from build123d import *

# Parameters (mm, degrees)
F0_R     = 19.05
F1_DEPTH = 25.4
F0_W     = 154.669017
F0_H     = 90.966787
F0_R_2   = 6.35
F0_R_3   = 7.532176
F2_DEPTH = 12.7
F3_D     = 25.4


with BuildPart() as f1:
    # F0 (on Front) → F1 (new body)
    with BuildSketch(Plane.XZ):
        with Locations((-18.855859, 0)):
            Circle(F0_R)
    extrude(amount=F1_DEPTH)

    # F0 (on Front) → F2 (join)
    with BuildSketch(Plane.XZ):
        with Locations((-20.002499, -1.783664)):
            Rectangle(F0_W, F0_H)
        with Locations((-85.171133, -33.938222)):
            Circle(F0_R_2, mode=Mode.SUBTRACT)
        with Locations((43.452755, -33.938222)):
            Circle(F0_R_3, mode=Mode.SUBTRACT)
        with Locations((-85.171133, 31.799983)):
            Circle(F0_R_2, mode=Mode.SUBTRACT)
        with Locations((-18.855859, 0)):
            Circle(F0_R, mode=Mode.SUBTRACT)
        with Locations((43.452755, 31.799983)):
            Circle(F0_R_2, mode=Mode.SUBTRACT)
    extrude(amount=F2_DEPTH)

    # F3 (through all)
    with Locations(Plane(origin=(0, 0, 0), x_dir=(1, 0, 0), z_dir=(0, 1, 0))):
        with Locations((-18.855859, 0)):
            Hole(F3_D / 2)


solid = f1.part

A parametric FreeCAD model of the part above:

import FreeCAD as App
import Part
import Sketcher
Q = App.Units.Quantity

doc = App.newDocument("Part")
body = doc.addObject("PartDesign::Body", "Body")

sketch1 = body.newObject("Sketcher::SketchObject", "Sketch")
sketch1.AttachmentSupport = (doc.getObject("XZ_Plane"), [""])
sketch1.MapMode = "FlatFace"
sketch1.addGeometry(Part.Circle(App.Vector(-19, 0, 0), App.Vector(0, 0, 1), 19), False)
sketch1.addConstraint([
    Sketcher.Constraint("PointOnObject", 0, 3, -1),
    Sketcher.Constraint("Diameter", 0, Q("1.5 in")),
    Sketcher.Constraint("DistanceX", 0, 3, -1, 1, 18.855859),
])
pad1 = body.newObject("PartDesign::Pad", "Pad")
pad1.Profile = sketch1
pad1.Length = Q("1 in")

sketch2 = body.newObject("Sketcher::SketchObject", "Sketch001")
sketch2.AttachmentSupport = (doc.getObject("XZ_Plane"), [""])
sketch2.MapMode = "FlatFace"
sketch2.addGeometry([
    Part.LineSegment(App.Vector(-97, 44, 0), App.Vector(-97, -47, 0)),
    Part.LineSegment(App.Vector(-97, -47, 0), App.Vector(57, -47, 0)),
    Part.LineSegment(App.Vector(57, -47, 0), App.Vector(57, 44, 0)),
    Part.LineSegment(App.Vector(57, 44, 0), App.Vector(-97, 44, 0)),
    Part.Circle(App.Vector(-85, -34, 0), App.Vector(0, 0, 1), 6),
    Part.Circle(App.Vector(43, -34, 0), App.Vector(0, 0, 1), 8),
    Part.Circle(App.Vector(-85, 32, 0), App.Vector(0, 0, 1), 6),
    Part.Circle(App.Vector(-19, 0, 0), App.Vector(0, 0, 1), 19),
    Part.Circle(App.Vector(43, 32, 0), App.Vector(0, 0, 1), 6),
], False)
sketch2.addConstraint([
    Sketcher.Constraint("Coincident", 0, 2, 1, 1),
    Sketcher.Constraint("Coincident", 1, 2, 2, 1),
    Sketcher.Constraint("Coincident", 2, 2, 3, 1),
    Sketcher.Constraint("Coincident", 3, 2, 0, 1),
    Sketcher.Constraint("Vertical", 0),
    Sketcher.Constraint("Horizontal", 1),
    Sketcher.Constraint("Vertical", 2),
    Sketcher.Constraint("Horizontal", 3),
    Sketcher.Constraint("Equal", 4, 6),
    Sketcher.Constraint("Equal", 6, 8),
    Sketcher.Constraint("PointOnObject", 7, 3, -1),
    Sketcher.Constraint("Horizontal", 4, 3, 5, 3),
    Sketcher.Constraint("Horizontal", 6, 3, 8, 3),
    Sketcher.Constraint("Vertical", 4, 3, 6, 3),
    Sketcher.Constraint("Vertical", 5, 3, 8, 3),
    Sketcher.Constraint("Diameter", 4, Q("0.5 in")),
    Sketcher.Constraint("Diameter", 7, Q("1.5 in")),
    Sketcher.Constraint("Diameter", 5, 15.064352),
    Sketcher.Constraint("DistanceX", 1, 1, 1, 2, 154.669017),
    Sketcher.Constraint("DistanceY", 0, 2, 0, 1, 90.966787),
    Sketcher.Constraint("DistanceX", 7, 3, -1, 1, 18.855859),
    Sketcher.Constraint("DistanceX", -1, 1, 1, 2, 57.332009),
    Sketcher.Constraint("DistanceY", -1, 1, 2, 2, 43.699729),
    Sketcher.Constraint("DistanceX", 4, 3, 5, 3, 128.623888),
    Sketcher.Constraint("DistanceY", 0, 2, 6, 3, 79.067041),
    Sketcher.Constraint("DistanceY", 5, 3, 2, 2, 77.637951),
    Sketcher.Constraint("DistanceX", 4, 3, -1, 1, 85.171133),
])
pad2 = body.newObject("PartDesign::Pad", "Pad001")
pad2.Profile = sketch2
pad2.Length = Q("0.5 in")

sketch3 = body.newObject("Sketcher::SketchObject", "Sketch002")
sketch3.AttachmentSupport = (doc.getObject("XZ_Plane"), [""])
sketch3.MapMode = "FlatFace"
sketch3.addGeometry(Part.Circle(App.Vector(-19, 0, 0), App.Vector(0, 0, 1), 13), False)
sketch3.addConstraint([
    Sketcher.Constraint("PointOnObject", 0, 3, -1),
    Sketcher.Constraint("Diameter", 0, Q("1 in")),
    Sketcher.Constraint("DistanceX", 0, 3, -1, 1, 18.855859),
])
doc.recompute()
hole = body.newObject("PartDesign::Hole", "Hole")
hole.Profile = sketch3
hole.ThreadType = "None"
hole.Diameter = Q("1 in")
hole.DepthType = "ThroughAll"
hole.Reversed = True

doc.recompute()
